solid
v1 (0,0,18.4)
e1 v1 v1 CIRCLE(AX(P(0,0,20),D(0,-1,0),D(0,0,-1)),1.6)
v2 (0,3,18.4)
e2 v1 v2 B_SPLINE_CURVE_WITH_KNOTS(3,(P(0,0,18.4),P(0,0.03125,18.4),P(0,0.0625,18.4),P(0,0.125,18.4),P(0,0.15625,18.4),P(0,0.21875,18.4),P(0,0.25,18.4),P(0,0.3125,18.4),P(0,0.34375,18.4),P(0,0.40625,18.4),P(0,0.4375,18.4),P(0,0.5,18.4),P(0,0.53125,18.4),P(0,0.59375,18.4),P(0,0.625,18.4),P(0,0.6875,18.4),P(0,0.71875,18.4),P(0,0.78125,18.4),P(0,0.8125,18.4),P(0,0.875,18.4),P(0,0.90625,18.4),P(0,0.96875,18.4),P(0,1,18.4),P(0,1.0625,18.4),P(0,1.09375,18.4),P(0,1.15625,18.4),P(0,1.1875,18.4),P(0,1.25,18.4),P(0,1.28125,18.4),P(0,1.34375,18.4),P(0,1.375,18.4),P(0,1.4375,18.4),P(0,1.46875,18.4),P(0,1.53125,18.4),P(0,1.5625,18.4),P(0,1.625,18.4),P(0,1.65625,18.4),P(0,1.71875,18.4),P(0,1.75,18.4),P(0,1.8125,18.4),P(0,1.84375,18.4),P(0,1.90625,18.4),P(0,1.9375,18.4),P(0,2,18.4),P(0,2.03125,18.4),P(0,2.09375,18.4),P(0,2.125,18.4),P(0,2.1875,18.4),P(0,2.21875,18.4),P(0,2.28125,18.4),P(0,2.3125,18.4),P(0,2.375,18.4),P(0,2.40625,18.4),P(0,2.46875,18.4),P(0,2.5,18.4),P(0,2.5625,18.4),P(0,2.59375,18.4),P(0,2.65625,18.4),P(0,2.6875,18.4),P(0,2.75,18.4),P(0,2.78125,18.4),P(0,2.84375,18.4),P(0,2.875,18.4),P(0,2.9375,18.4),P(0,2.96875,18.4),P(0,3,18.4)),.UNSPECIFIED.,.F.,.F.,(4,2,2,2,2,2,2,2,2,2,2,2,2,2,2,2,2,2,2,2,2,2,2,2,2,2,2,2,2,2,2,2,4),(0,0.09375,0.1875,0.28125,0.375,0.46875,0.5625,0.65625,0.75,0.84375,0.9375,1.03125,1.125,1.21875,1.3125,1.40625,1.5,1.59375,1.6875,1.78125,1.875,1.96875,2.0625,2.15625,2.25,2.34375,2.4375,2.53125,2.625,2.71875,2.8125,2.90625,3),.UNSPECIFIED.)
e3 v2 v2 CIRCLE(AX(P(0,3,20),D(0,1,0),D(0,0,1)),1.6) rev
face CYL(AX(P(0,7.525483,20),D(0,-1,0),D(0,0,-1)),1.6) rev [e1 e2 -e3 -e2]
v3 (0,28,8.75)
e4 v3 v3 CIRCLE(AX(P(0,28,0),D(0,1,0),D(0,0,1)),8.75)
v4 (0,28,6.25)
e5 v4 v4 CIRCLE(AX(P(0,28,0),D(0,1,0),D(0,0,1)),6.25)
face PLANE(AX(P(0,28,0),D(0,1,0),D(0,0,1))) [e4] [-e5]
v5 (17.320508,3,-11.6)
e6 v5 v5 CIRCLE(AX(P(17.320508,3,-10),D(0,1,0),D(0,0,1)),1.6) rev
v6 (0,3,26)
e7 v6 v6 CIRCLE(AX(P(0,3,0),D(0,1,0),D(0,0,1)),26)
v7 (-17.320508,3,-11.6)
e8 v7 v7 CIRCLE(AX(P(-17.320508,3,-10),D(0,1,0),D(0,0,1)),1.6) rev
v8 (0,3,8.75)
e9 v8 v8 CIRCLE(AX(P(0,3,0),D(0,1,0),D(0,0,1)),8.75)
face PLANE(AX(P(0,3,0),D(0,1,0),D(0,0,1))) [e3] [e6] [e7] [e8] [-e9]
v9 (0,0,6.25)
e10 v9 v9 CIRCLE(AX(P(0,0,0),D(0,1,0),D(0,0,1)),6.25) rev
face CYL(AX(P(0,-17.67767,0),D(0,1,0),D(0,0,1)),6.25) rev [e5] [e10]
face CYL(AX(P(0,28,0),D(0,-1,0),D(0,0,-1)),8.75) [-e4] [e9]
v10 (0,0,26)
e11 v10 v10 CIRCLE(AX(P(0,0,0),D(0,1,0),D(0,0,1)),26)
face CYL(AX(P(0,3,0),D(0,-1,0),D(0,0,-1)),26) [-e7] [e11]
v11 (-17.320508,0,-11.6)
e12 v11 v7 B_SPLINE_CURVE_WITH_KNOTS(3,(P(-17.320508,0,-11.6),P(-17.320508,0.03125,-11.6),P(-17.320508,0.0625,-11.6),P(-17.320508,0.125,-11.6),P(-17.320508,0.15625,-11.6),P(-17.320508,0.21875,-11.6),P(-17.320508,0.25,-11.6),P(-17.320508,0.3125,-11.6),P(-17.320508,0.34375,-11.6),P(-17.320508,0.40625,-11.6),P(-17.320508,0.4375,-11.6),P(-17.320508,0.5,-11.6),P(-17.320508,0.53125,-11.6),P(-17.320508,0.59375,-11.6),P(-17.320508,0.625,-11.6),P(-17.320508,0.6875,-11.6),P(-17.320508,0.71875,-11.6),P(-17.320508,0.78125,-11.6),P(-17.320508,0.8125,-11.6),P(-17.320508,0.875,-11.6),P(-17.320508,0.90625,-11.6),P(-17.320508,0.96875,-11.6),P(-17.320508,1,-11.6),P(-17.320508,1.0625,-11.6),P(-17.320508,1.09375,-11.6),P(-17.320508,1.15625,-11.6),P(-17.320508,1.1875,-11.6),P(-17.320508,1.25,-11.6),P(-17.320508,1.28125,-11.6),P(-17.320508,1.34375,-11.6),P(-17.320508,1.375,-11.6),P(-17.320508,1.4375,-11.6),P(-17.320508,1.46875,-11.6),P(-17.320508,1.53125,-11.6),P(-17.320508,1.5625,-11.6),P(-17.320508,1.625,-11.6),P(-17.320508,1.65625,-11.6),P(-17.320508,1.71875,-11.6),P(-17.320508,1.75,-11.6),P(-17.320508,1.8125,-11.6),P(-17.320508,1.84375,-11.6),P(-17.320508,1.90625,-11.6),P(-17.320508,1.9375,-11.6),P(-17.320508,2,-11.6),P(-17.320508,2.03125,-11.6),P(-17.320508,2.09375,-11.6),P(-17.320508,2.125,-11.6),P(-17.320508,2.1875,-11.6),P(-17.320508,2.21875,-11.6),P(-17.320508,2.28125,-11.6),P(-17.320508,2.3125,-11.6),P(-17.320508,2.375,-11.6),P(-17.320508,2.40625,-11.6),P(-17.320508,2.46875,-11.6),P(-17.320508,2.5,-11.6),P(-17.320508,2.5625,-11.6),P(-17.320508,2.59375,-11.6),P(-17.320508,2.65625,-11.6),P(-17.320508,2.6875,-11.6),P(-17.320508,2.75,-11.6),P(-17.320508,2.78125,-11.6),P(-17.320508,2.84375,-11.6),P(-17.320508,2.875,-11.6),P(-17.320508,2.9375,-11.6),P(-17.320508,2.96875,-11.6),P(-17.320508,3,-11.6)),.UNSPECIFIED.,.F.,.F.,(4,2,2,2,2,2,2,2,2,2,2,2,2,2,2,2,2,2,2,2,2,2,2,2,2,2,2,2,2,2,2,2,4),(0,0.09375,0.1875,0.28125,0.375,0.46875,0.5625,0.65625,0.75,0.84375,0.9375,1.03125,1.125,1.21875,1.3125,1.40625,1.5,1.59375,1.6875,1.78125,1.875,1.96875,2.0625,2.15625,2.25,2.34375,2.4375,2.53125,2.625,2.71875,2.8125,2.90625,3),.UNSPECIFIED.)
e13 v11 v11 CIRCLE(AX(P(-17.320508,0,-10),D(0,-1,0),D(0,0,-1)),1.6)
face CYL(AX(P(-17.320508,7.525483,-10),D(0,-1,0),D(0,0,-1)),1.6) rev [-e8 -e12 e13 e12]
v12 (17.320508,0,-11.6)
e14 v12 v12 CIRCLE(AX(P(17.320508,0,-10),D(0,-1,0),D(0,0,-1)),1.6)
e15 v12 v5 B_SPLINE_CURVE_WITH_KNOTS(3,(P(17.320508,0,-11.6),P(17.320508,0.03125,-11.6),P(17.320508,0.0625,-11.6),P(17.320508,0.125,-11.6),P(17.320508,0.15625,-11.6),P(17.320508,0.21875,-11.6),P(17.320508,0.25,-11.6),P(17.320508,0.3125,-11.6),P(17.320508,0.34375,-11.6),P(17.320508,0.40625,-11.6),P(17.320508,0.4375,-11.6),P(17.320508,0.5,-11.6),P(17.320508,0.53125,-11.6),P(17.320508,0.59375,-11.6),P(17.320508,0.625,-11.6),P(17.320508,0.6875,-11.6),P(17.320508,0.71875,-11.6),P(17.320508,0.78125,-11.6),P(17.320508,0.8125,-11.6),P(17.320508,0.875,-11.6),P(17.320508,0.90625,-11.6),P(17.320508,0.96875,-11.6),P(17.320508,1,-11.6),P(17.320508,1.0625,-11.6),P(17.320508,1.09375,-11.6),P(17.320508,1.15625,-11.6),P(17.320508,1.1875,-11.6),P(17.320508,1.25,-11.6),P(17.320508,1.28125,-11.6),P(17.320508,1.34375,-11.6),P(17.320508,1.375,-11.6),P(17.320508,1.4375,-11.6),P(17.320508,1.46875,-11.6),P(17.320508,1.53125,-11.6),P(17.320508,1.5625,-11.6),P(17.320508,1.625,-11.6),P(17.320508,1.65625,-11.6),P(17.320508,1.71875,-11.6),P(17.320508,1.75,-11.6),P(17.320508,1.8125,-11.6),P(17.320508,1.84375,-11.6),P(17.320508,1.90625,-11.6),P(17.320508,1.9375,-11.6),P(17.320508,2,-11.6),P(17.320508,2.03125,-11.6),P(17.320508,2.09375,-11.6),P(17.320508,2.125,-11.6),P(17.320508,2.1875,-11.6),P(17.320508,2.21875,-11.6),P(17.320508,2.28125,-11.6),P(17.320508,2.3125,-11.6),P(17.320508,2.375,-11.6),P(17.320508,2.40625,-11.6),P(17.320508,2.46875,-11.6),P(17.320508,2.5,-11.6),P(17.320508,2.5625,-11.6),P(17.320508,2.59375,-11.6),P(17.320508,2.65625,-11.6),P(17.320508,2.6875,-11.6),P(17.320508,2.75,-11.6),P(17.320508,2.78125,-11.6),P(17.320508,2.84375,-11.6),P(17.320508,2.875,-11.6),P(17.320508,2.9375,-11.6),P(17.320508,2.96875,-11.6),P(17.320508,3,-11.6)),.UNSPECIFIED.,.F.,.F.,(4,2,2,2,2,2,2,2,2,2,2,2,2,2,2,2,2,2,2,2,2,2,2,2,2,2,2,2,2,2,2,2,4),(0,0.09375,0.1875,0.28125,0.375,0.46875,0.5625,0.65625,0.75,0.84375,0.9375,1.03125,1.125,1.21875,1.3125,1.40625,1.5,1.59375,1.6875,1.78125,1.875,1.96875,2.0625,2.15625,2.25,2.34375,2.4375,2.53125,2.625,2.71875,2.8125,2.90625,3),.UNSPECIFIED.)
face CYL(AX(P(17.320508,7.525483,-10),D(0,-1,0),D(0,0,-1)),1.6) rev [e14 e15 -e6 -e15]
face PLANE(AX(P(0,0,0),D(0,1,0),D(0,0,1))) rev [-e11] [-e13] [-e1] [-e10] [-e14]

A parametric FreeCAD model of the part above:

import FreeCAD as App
import Part
import Sketcher
from FreeCAD import Vector
Q = App.Units.Quantity

doc = App.newDocument("Part")
body = doc.addObject("PartDesign::Body", "Body")

# Sketch on XZ plane
sketch1 = body.newObject("Sketcher::SketchObject", "Sketch")
sketch1.AttachmentSupport = (doc.getObject("XZ_Plane"), [""])
sketch1.MapMode = "FlatFace"
sketch1.addGeometry(Part.Circle(Vector(0, 0, 0), Vector(0, 0, 1), 26), False)
sketch1.addConstraint(Sketcher.Constraint("Coincident", 0, 3, -1, 1))
sketch1.addConstraint(Sketcher.Constraint("Diameter", 0, Q("52 mm")))
pad1 = body.newObject("PartDesign::Pad", "Pad")
pad1.Profile = sketch1
pad1.Length = 3
pad1.Reversed = True

# Sketch on XZ plane
sketch2 = body.newObject("Sketcher::SketchObject", "Sketch001")
sketch2.AttachmentSupport = (doc.getObject("XZ_Plane"), [""])
sketch2.MapMode = "FlatFace"
sketch2.AttachmentOffset = App.Placement(Vector(0, 0, -3), App.Rotation())
sketch2.addGeometry(Part.Circle(Vector(0, 0, 0), Vector(0, 0, 1), 8.75), False)
sketch2.addConstraint(Sketcher.Constraint("Coincident", 0, 3, -1, 1))
sketch2.addConstraint(Sketcher.Constraint("Diameter", 0, Q("17.5 mm")))
pad2 = body.newObject("PartDesign::Pad", "Pad001")
pad2.Profile = sketch2
pad2.Length = 25
pad2.Reversed = True

# Sketch on XZ plane
sketch3 = body.newObject("Sketcher::SketchObject", "Sketch002")
sketch3.AttachmentSupport = (doc.getObject("XZ_Plane"), [""])
sketch3.MapMode = "FlatFace"
sketch3.AttachmentOffset = App.Placement(Vector(0, 0, -28), App.Rotation())
sketch3.addGeometry(Part.Circle(Vector(0, 0, 0), Vector(0, 0, 1), 6.25), False)
sketch3.addConstraint(Sketcher.Constraint("Coincident", 0, 3, -1, 1))
sketch3.addConstraint(Sketcher.Constraint("Diameter", 0, Q("12.5 mm")))
pocket1 = body.newObject("PartDesign::Pocket", "Pocket")
pocket1.Profile = sketch3
pocket1.Length = 28
pocket1.Reversed = True

# Sketch on XZ plane
sketch4 = body.newObject("Sketcher::SketchObject", "Sketch003")
sketch4.AttachmentSupport = (doc.getObject("XZ_Plane"), [""])
sketch4.MapMode = "FlatFace"
sketch4.addGeometry(Part.Circle(Vector(0, 20, 0), Vector(0, 0, 1), 1.6), False)
sketch4.addGeometry(Part.Circle(Vector(17.320508, -10, 0), Vector(0, 0, 1), 1.6), False)
sketch4.addGeometry(Part.Circle(Vector(-17.320508, -10, 0), Vector(0, 0, 1), 1.6), False)
sketch4.addConstraint(Sketcher.Constraint("Equal", 0, 1))
sketch4.addConstraint(Sketcher.Constraint("Equal", 1, 2))
sketch4.addConstraint(Sketcher.Constraint("Symmetric", 1, 3, 2, 3, -2))
sketch4.addConstraint(Sketcher.Constraint("PointOnObject", 0, 3, -2))
sketch4.addConstraint(Sketcher.Constraint("Diameter", 0, Q("3.2 mm")))
sketch4.addConstraint(Sketcher.Constraint("DistanceY", -1, 1, 0, 3, Q("20 mm")))
sketch4.addConstraint(Sketcher.Constraint("DistanceY", 1, 3, -1, 1, Q("10 mm")))
sketch4.addConstraint(Sketcher.Constraint("DistanceX", -1, 1, 1, 3, Q("17.320508 mm")))
pocket2 = body.newObject("PartDesign::Pocket", "Pocket001")
pocket2.Profile = sketch4
pocket2.Length = 3

doc.recompute()
